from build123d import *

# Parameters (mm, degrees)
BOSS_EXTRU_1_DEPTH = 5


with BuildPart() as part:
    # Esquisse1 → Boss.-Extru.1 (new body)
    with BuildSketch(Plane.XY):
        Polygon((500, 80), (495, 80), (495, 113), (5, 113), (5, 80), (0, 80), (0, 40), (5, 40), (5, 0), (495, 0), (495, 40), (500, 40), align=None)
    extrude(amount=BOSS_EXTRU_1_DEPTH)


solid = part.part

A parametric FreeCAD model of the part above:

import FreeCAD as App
import Part
import Sketcher
from FreeCAD import Vector
Q = App.Units.Quantity


def add_polygon(sketch, points):
    """Adds a closed chain of lines whose ends are joined by coincident constraints."""
    first, n = sketch.GeometryCount, len(points)
    for a, b in zip(points, points[1:] + points[:1]):
        sketch.addGeometry(Part.LineSegment(App.Vector(*a, 0), App.Vector(*b, 0)), False)
    for i in range(n):
        sketch.addConstraint(Sketcher.Constraint("Coincident", first + i, 2, first + (i + 1) % n, 1))

doc = App.newDocument("Part")
body = doc.addObject("PartDesign::Body", "Body")

# Sketch on XY plane
sketch1 = doc.addObject("Sketcher::SketchObject", "Sketch")
body.addObject(sketch1)
sketch1.AttachmentSupport = (doc.XY_Plane, [""])
sketch1.MapMode = "FlatFace"
add_polygon(sketch1, [(500, 80), (495, 80), (495, 113), (5, 113), (5, 80), (0, 80), (0, 40), (5, 40), (5, 0), (495, 0), (495, 40), (500, 40)])  # lines 0-11
sketch1.addConstraint(Sketcher.Constraint("Horizontal", 0))
sketch1.addConstraint(Sketcher.Constraint("Vertical", 1))
sketch1.addConstraint(Sketcher.Constraint("Horizontal", 2))
sketch1.addConstraint(Sketcher.Constraint("Vertical", 3))
sketch1.addConstraint(Sketcher.Constraint("Horizontal", 4))
sketch1.addConstraint(Sketcher.Constraint("Vertical", 5))
sketch1.addConstraint(Sketcher.Constraint("Horizontal", 6))
sketch1.addConstraint(Sketcher.Constraint("Vertical", 7))
sketch1.addConstraint(Sketcher.Constraint("Horizontal", 8))
sketch1.addConstraint(Sketcher.Constraint("Vertical", 9))
sketch1.addConstraint(Sketcher.Constraint("Horizontal", 10))
sketch1.addConstraint(Sketcher.Constraint("Vertical", 11))
sketch1.addConstraint(Sketcher.Constraint("PointOnObject", 4, 2, -2))
sketch1.addConstraint(Sketcher.Constraint("PointOnObject", 7, 2, -1))
sketch1.addConstraint(Sketcher.Constraint("Horizontal", 0, 2, 3, 2))
sketch1.addConstraint(Sketcher.Constraint("Horizontal", 6, 2, 9, 2))
sketch1.addConstraint(Sketcher.Constraint("Vertical", 3, 2, 6, 2))
sketch1.addConstraint(Sketcher.Constraint("Vertical", 1, 2, 8, 2))
sketch1.addConstraint(Sketcher.Constraint("Equal", 0, 4))
sketch1.addConstraint(Sketcher.Constraint("Equal", 5, 7))
sketch1.addConstraint(Sketcher.Constraint("DistanceX", 0, 2, 0, 1, Q("5 mm")))
sketch1.addConstraint(Sketcher.Constraint("DistanceX", 2, 2, 2, 1, Q("490 mm")))
sketch1.addConstraint(Sketcher.Constraint("DistanceY", 1, 1, 1, 2, Q("33 mm")))
sketch1.addConstraint(Sketcher.Constraint("DistanceY", 5, 2, 5, 1, Q("40 mm")))
pad1 = doc.addObject("PartDesign::Pad", "Pad")
body.addObject(pad1)
pad1.Profile = sketch1
pad1.Length = 5

doc.recompute()
